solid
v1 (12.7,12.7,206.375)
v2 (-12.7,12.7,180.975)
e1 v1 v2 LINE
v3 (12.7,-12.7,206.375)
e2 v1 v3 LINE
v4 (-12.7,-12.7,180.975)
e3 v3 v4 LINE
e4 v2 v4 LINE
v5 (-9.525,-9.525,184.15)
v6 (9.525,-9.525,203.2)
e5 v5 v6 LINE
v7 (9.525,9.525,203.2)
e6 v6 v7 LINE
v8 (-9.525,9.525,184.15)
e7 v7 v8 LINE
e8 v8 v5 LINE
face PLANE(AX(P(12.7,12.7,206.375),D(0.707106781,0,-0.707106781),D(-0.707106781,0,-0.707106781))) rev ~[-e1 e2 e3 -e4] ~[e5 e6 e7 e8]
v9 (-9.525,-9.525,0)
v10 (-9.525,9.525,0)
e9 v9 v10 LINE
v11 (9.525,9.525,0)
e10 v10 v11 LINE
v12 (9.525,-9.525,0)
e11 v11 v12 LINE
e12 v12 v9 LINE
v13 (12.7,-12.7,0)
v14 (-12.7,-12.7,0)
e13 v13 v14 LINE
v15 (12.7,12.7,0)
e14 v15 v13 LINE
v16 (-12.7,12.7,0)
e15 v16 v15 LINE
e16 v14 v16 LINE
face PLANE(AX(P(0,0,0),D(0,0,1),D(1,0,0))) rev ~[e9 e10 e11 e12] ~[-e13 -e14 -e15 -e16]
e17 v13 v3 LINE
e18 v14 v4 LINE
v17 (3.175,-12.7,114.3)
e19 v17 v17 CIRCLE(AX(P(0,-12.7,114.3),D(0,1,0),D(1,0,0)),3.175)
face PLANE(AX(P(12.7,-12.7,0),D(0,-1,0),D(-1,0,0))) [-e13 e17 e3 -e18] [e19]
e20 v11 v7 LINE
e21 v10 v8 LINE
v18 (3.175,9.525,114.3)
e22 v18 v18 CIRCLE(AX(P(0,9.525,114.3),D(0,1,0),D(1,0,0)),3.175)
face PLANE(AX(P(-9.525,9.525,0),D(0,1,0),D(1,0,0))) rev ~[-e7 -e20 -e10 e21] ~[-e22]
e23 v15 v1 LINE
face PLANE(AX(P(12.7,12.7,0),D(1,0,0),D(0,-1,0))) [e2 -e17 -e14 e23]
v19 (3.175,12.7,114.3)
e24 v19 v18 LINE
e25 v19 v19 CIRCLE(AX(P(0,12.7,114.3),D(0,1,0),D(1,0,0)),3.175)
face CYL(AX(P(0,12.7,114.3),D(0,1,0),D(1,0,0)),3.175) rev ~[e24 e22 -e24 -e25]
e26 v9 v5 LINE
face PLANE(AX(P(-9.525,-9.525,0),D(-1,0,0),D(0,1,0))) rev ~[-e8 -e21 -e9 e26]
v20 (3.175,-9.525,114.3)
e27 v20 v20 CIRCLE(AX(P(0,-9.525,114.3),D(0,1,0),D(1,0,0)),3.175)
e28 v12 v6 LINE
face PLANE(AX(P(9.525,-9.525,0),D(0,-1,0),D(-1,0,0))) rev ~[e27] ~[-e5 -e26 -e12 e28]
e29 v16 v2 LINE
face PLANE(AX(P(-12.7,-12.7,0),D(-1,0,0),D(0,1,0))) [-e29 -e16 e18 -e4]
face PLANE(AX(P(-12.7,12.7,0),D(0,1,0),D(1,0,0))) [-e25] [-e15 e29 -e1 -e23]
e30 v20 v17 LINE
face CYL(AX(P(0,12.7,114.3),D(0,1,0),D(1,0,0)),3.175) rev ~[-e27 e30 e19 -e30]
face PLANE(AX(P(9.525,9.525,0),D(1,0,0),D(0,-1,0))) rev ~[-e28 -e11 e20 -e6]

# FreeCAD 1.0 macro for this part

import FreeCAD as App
import Part
import Sketcher
from FreeCAD import Vector
Q = App.Units.Quantity


def add_polygon(sketch, points):
    """Adds a closed chain of lines whose ends are joined by coincident constraints."""
    first, n = sketch.GeometryCount, len(points)
    for a, b in zip(points, points[1:] + points[:1]):
        sketch.addGeometry(Part.LineSegment(App.Vector(*a, 0), App.Vector(*b, 0)), False)
    for i in range(n):
        sketch.addConstraint(Sketcher.Constraint("Coincident", first + i, 2, first + (i + 1) % n, 1))

doc = App.newDocument("Part")
body = doc.addObject("PartDesign::Body", "Body")

# Sketch on XY plane
sketch1 = body.newObject("Sketcher::SketchObject", "Sketch")
sketch1.AttachmentSupport = (doc.getObject("XY_Plane"), [""])
sketch1.MapMode = "FlatFace"
add_polygon(sketch1, [(13, 13), (-13, 13), (-13, -13), (13, -13)])  # lines 0-3
add_polygon(sketch1, [(-10, -10), (-10, 10), (10, 10), (10, -10)])  # lines 4-7
sketch1.addConstraint([
    Sketcher.Constraint("Horizontal", 0),
    Sketcher.Constraint("Vertical", 1),
    Sketcher.Constraint("Horizontal", 2),
    Sketcher.Constraint("Vertical", 3),
    Sketcher.Constraint("Vertical", 4),
    Sketcher.Constraint("Horizontal", 5),
    Sketcher.Constraint("Vertical", 6),
    Sketcher.Constraint("Horizontal", 7),
    Sketcher.Constraint("Symmetric", 0, 2, 2, 2, -1, 1),
    Sketcher.Constraint("Symmetric", 4, 2, 6, 2, -1, 1),
    Sketcher.Constraint("Equal", 2, 1),
    Sketcher.Constraint("Equal", 7, 4),
    Sketcher.Constraint("DistanceX", 0, 2, 0, 1, Q("1 in")),
    Sketcher.Constraint("DistanceX", 0, 2, 4, 2, Q("0.125 in")),
])
pad1 = body.newObject("PartDesign::Pad", "Pad")
pad1.Profile = sketch1
pad1.Length = Q("8.125 in")

# Sketch on XZ plane
sketch2 = body.newObject("Sketcher::SketchObject", "Sketch001")
sketch2.AttachmentSupport = (doc.getObject("XZ_Plane"), [""])
sketch2.MapMode = "FlatFace"
sketch2.AttachmentOffset = App.Placement(Vector(0, 0, -0.5 * 25.4), App.Rotation())
add_polygon(sketch2, [(-13, 181), (-13, 206), (13, 206)])  # lines 0-2
sketch2.addConstraint([
    Sketcher.Constraint("Vertical", 0),
    Sketcher.Constraint("Horizontal", 1),
    Sketcher.Constraint("Equal", 1, 0),
    Sketcher.Constraint("DistanceX", 1, 1, 1, 2, Q("1 in")),
    Sketcher.Constraint("DistanceX", 0, 2, -1, 1, Q("0.5 in")),
    Sketcher.Constraint("DistanceY", -1, 1, 0, 2, Q("8.125 in")),
])
pocket1 = body.newObject("PartDesign::Pocket", "Pocket")
pocket1.Profile = sketch2
pocket1.Length = Q("1 in")
pocket1.Reversed = True

# Sketch on XZ plane
sketch3 = body.newObject("Sketcher::SketchObject", "Sketch002")
sketch3.AttachmentSupport = (doc.getObject("XZ_Plane"), [""])
sketch3.MapMode = "FlatFace"
sketch3.AttachmentOffset = App.Placement(Vector(0, 0, -0.5 * 25.4), App.Rotation())
sketch3.addGeometry(Part.Circle(Vector(0, 114.3, 0), Vector(0, 0, 1), 3.2), False)
sketch3.addConstraint([
    Sketcher.Constraint("PointOnObject", 0, 3, -2),
    Sketcher.Constraint("Diameter", 0, Q("0.25 in")),
    Sketcher.Constraint("DistanceY", -1, 1, 0, 3, Q("4.5 in")),
])
pocket2 = body.newObject("PartDesign::Pocket", "Pocket001")
pocket2.Profile = sketch3
pocket2.Length = Q("1 in")
pocket2.Reversed = True

doc.recompute()
